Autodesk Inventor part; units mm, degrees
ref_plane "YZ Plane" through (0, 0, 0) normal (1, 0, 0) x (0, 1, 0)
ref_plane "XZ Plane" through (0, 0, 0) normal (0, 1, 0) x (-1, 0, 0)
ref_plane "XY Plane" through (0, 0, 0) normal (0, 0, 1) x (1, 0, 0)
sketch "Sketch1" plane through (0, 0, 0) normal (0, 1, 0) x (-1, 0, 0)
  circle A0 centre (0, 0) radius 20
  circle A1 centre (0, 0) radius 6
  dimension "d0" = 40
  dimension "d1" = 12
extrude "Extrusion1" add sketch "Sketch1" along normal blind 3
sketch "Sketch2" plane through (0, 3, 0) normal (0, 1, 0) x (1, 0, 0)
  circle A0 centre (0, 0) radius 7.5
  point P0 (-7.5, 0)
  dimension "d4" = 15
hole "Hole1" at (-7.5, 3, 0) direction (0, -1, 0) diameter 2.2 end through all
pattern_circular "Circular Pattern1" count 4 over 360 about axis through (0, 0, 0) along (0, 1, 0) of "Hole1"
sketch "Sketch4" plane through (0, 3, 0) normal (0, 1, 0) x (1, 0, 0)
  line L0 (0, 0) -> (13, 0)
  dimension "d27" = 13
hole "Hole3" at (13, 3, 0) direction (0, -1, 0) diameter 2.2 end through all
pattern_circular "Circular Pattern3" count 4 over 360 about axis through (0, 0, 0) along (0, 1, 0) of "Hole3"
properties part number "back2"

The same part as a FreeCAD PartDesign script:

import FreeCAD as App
import Part
import Sketcher

V = App.Vector

doc = App.newDocument("Part")
body = doc.addObject("PartDesign::Body", "Body")

# Sketch on XZ plane
sketch1 = body.newObject("Sketcher::SketchObject", "Sketch")
sketch1.AttachmentSupport = (doc.getObject("XZ_Plane"), [""])
sketch1.MapMode = "FlatFace"
sketch1.addGeometry([
    Part.Circle(V(0, 0, 0), V(0, 0, 1), 20),
    Part.Circle(V(0, 0, 0), V(0, 0, 1), 6),
], False)
sketch1.addConstraint([
    Sketcher.Constraint("Coincident", 0, 3, -1, 1),
    Sketcher.Constraint("Coincident", 1, 3, -1, 1),
    Sketcher.Constraint("Diameter", 0, 40.0),
    Sketcher.Constraint("Diameter", 1, 12.0),
])
pad1 = body.newObject("PartDesign::Pad", "Pad")
pad1.Profile = sketch1
pad1.Length = 3
pad1.Reversed = True

# Sketch on XZ plane
sketch2 = body.newObject("Sketcher::SketchObject", "Sketch001")
sketch2.AttachmentSupport = (doc.getObject("XZ_Plane"), [""])
sketch2.MapMode = "FlatFace"
sketch2.AttachmentOffset = App.Placement(V(0, 0, -3), App.Rotation())
sketch2.addGeometry(Part.Circle(V(-7.5, 0, 0), V(0, 0, 1), 1.1), False)
sketch2.addConstraint([
    Sketcher.Constraint("PointOnObject", 0, 3, -1),
    Sketcher.Constraint("Diameter", 0, 2.2),
    Sketcher.Constraint("DistanceX", 0, 3, -1, 1, 7.5),
])
doc.recompute()
hole = body.newObject("PartDesign::Hole", "Hole")
hole.Profile = sketch2
hole.ThreadType = "None"
hole.Diameter = 2.2
hole.DepthType = "ThroughAll"
hole.Reversed = True
doc.recompute()

polarpattern = body.newObject("PartDesign::PolarPattern", "PolarPattern")
polarpattern.Originals = [hole]
polarpattern.Axis = (doc.getObject("Y_Axis"), [""])
polarpattern.Angle = 360
polarpattern.Occurrences = 4
body.Tip = polarpattern

# Sketch on XZ plane
sketch3 = body.newObject("Sketcher::SketchObject", "Sketch002")
sketch3.AttachmentSupport = (doc.getObject("XZ_Plane"), [""])
sketch3.MapMode = "FlatFace"
sketch3.AttachmentOffset = App.Placement(V(0, 0, -3), App.Rotation())
sketch3.addGeometry(Part.Circle(V(13, 0, 0), V(0, 0, 1), 1.1), False)
sketch3.addConstraint([
    Sketcher.Constraint("PointOnObject", 0, 3, -1),
    Sketcher.Constraint("Diameter", 0, 2.2),
    Sketcher.Constraint("DistanceX", -1, 1, 0, 3, 13.0),
])
doc.recompute()
hole2 = body.newObject("PartDesign::Hole", "Hole001")
hole2.Profile = sketch3
hole2.ThreadType = "None"
hole2.Diameter = 2.2
hole2.DepthType = "ThroughAll"
hole2.Reversed = True
doc.recompute()

polarpattern2 = body.newObject("PartDesign::PolarPattern", "PolarPattern001")
polarpattern2.Originals = [hole2]
polarpattern2.Axis = (doc.getObject("Y_Axis"), [""])
polarpattern2.Angle = 360
polarpattern2.Occurrences = 4
body.Tip = polarpattern2

doc.recompute()
